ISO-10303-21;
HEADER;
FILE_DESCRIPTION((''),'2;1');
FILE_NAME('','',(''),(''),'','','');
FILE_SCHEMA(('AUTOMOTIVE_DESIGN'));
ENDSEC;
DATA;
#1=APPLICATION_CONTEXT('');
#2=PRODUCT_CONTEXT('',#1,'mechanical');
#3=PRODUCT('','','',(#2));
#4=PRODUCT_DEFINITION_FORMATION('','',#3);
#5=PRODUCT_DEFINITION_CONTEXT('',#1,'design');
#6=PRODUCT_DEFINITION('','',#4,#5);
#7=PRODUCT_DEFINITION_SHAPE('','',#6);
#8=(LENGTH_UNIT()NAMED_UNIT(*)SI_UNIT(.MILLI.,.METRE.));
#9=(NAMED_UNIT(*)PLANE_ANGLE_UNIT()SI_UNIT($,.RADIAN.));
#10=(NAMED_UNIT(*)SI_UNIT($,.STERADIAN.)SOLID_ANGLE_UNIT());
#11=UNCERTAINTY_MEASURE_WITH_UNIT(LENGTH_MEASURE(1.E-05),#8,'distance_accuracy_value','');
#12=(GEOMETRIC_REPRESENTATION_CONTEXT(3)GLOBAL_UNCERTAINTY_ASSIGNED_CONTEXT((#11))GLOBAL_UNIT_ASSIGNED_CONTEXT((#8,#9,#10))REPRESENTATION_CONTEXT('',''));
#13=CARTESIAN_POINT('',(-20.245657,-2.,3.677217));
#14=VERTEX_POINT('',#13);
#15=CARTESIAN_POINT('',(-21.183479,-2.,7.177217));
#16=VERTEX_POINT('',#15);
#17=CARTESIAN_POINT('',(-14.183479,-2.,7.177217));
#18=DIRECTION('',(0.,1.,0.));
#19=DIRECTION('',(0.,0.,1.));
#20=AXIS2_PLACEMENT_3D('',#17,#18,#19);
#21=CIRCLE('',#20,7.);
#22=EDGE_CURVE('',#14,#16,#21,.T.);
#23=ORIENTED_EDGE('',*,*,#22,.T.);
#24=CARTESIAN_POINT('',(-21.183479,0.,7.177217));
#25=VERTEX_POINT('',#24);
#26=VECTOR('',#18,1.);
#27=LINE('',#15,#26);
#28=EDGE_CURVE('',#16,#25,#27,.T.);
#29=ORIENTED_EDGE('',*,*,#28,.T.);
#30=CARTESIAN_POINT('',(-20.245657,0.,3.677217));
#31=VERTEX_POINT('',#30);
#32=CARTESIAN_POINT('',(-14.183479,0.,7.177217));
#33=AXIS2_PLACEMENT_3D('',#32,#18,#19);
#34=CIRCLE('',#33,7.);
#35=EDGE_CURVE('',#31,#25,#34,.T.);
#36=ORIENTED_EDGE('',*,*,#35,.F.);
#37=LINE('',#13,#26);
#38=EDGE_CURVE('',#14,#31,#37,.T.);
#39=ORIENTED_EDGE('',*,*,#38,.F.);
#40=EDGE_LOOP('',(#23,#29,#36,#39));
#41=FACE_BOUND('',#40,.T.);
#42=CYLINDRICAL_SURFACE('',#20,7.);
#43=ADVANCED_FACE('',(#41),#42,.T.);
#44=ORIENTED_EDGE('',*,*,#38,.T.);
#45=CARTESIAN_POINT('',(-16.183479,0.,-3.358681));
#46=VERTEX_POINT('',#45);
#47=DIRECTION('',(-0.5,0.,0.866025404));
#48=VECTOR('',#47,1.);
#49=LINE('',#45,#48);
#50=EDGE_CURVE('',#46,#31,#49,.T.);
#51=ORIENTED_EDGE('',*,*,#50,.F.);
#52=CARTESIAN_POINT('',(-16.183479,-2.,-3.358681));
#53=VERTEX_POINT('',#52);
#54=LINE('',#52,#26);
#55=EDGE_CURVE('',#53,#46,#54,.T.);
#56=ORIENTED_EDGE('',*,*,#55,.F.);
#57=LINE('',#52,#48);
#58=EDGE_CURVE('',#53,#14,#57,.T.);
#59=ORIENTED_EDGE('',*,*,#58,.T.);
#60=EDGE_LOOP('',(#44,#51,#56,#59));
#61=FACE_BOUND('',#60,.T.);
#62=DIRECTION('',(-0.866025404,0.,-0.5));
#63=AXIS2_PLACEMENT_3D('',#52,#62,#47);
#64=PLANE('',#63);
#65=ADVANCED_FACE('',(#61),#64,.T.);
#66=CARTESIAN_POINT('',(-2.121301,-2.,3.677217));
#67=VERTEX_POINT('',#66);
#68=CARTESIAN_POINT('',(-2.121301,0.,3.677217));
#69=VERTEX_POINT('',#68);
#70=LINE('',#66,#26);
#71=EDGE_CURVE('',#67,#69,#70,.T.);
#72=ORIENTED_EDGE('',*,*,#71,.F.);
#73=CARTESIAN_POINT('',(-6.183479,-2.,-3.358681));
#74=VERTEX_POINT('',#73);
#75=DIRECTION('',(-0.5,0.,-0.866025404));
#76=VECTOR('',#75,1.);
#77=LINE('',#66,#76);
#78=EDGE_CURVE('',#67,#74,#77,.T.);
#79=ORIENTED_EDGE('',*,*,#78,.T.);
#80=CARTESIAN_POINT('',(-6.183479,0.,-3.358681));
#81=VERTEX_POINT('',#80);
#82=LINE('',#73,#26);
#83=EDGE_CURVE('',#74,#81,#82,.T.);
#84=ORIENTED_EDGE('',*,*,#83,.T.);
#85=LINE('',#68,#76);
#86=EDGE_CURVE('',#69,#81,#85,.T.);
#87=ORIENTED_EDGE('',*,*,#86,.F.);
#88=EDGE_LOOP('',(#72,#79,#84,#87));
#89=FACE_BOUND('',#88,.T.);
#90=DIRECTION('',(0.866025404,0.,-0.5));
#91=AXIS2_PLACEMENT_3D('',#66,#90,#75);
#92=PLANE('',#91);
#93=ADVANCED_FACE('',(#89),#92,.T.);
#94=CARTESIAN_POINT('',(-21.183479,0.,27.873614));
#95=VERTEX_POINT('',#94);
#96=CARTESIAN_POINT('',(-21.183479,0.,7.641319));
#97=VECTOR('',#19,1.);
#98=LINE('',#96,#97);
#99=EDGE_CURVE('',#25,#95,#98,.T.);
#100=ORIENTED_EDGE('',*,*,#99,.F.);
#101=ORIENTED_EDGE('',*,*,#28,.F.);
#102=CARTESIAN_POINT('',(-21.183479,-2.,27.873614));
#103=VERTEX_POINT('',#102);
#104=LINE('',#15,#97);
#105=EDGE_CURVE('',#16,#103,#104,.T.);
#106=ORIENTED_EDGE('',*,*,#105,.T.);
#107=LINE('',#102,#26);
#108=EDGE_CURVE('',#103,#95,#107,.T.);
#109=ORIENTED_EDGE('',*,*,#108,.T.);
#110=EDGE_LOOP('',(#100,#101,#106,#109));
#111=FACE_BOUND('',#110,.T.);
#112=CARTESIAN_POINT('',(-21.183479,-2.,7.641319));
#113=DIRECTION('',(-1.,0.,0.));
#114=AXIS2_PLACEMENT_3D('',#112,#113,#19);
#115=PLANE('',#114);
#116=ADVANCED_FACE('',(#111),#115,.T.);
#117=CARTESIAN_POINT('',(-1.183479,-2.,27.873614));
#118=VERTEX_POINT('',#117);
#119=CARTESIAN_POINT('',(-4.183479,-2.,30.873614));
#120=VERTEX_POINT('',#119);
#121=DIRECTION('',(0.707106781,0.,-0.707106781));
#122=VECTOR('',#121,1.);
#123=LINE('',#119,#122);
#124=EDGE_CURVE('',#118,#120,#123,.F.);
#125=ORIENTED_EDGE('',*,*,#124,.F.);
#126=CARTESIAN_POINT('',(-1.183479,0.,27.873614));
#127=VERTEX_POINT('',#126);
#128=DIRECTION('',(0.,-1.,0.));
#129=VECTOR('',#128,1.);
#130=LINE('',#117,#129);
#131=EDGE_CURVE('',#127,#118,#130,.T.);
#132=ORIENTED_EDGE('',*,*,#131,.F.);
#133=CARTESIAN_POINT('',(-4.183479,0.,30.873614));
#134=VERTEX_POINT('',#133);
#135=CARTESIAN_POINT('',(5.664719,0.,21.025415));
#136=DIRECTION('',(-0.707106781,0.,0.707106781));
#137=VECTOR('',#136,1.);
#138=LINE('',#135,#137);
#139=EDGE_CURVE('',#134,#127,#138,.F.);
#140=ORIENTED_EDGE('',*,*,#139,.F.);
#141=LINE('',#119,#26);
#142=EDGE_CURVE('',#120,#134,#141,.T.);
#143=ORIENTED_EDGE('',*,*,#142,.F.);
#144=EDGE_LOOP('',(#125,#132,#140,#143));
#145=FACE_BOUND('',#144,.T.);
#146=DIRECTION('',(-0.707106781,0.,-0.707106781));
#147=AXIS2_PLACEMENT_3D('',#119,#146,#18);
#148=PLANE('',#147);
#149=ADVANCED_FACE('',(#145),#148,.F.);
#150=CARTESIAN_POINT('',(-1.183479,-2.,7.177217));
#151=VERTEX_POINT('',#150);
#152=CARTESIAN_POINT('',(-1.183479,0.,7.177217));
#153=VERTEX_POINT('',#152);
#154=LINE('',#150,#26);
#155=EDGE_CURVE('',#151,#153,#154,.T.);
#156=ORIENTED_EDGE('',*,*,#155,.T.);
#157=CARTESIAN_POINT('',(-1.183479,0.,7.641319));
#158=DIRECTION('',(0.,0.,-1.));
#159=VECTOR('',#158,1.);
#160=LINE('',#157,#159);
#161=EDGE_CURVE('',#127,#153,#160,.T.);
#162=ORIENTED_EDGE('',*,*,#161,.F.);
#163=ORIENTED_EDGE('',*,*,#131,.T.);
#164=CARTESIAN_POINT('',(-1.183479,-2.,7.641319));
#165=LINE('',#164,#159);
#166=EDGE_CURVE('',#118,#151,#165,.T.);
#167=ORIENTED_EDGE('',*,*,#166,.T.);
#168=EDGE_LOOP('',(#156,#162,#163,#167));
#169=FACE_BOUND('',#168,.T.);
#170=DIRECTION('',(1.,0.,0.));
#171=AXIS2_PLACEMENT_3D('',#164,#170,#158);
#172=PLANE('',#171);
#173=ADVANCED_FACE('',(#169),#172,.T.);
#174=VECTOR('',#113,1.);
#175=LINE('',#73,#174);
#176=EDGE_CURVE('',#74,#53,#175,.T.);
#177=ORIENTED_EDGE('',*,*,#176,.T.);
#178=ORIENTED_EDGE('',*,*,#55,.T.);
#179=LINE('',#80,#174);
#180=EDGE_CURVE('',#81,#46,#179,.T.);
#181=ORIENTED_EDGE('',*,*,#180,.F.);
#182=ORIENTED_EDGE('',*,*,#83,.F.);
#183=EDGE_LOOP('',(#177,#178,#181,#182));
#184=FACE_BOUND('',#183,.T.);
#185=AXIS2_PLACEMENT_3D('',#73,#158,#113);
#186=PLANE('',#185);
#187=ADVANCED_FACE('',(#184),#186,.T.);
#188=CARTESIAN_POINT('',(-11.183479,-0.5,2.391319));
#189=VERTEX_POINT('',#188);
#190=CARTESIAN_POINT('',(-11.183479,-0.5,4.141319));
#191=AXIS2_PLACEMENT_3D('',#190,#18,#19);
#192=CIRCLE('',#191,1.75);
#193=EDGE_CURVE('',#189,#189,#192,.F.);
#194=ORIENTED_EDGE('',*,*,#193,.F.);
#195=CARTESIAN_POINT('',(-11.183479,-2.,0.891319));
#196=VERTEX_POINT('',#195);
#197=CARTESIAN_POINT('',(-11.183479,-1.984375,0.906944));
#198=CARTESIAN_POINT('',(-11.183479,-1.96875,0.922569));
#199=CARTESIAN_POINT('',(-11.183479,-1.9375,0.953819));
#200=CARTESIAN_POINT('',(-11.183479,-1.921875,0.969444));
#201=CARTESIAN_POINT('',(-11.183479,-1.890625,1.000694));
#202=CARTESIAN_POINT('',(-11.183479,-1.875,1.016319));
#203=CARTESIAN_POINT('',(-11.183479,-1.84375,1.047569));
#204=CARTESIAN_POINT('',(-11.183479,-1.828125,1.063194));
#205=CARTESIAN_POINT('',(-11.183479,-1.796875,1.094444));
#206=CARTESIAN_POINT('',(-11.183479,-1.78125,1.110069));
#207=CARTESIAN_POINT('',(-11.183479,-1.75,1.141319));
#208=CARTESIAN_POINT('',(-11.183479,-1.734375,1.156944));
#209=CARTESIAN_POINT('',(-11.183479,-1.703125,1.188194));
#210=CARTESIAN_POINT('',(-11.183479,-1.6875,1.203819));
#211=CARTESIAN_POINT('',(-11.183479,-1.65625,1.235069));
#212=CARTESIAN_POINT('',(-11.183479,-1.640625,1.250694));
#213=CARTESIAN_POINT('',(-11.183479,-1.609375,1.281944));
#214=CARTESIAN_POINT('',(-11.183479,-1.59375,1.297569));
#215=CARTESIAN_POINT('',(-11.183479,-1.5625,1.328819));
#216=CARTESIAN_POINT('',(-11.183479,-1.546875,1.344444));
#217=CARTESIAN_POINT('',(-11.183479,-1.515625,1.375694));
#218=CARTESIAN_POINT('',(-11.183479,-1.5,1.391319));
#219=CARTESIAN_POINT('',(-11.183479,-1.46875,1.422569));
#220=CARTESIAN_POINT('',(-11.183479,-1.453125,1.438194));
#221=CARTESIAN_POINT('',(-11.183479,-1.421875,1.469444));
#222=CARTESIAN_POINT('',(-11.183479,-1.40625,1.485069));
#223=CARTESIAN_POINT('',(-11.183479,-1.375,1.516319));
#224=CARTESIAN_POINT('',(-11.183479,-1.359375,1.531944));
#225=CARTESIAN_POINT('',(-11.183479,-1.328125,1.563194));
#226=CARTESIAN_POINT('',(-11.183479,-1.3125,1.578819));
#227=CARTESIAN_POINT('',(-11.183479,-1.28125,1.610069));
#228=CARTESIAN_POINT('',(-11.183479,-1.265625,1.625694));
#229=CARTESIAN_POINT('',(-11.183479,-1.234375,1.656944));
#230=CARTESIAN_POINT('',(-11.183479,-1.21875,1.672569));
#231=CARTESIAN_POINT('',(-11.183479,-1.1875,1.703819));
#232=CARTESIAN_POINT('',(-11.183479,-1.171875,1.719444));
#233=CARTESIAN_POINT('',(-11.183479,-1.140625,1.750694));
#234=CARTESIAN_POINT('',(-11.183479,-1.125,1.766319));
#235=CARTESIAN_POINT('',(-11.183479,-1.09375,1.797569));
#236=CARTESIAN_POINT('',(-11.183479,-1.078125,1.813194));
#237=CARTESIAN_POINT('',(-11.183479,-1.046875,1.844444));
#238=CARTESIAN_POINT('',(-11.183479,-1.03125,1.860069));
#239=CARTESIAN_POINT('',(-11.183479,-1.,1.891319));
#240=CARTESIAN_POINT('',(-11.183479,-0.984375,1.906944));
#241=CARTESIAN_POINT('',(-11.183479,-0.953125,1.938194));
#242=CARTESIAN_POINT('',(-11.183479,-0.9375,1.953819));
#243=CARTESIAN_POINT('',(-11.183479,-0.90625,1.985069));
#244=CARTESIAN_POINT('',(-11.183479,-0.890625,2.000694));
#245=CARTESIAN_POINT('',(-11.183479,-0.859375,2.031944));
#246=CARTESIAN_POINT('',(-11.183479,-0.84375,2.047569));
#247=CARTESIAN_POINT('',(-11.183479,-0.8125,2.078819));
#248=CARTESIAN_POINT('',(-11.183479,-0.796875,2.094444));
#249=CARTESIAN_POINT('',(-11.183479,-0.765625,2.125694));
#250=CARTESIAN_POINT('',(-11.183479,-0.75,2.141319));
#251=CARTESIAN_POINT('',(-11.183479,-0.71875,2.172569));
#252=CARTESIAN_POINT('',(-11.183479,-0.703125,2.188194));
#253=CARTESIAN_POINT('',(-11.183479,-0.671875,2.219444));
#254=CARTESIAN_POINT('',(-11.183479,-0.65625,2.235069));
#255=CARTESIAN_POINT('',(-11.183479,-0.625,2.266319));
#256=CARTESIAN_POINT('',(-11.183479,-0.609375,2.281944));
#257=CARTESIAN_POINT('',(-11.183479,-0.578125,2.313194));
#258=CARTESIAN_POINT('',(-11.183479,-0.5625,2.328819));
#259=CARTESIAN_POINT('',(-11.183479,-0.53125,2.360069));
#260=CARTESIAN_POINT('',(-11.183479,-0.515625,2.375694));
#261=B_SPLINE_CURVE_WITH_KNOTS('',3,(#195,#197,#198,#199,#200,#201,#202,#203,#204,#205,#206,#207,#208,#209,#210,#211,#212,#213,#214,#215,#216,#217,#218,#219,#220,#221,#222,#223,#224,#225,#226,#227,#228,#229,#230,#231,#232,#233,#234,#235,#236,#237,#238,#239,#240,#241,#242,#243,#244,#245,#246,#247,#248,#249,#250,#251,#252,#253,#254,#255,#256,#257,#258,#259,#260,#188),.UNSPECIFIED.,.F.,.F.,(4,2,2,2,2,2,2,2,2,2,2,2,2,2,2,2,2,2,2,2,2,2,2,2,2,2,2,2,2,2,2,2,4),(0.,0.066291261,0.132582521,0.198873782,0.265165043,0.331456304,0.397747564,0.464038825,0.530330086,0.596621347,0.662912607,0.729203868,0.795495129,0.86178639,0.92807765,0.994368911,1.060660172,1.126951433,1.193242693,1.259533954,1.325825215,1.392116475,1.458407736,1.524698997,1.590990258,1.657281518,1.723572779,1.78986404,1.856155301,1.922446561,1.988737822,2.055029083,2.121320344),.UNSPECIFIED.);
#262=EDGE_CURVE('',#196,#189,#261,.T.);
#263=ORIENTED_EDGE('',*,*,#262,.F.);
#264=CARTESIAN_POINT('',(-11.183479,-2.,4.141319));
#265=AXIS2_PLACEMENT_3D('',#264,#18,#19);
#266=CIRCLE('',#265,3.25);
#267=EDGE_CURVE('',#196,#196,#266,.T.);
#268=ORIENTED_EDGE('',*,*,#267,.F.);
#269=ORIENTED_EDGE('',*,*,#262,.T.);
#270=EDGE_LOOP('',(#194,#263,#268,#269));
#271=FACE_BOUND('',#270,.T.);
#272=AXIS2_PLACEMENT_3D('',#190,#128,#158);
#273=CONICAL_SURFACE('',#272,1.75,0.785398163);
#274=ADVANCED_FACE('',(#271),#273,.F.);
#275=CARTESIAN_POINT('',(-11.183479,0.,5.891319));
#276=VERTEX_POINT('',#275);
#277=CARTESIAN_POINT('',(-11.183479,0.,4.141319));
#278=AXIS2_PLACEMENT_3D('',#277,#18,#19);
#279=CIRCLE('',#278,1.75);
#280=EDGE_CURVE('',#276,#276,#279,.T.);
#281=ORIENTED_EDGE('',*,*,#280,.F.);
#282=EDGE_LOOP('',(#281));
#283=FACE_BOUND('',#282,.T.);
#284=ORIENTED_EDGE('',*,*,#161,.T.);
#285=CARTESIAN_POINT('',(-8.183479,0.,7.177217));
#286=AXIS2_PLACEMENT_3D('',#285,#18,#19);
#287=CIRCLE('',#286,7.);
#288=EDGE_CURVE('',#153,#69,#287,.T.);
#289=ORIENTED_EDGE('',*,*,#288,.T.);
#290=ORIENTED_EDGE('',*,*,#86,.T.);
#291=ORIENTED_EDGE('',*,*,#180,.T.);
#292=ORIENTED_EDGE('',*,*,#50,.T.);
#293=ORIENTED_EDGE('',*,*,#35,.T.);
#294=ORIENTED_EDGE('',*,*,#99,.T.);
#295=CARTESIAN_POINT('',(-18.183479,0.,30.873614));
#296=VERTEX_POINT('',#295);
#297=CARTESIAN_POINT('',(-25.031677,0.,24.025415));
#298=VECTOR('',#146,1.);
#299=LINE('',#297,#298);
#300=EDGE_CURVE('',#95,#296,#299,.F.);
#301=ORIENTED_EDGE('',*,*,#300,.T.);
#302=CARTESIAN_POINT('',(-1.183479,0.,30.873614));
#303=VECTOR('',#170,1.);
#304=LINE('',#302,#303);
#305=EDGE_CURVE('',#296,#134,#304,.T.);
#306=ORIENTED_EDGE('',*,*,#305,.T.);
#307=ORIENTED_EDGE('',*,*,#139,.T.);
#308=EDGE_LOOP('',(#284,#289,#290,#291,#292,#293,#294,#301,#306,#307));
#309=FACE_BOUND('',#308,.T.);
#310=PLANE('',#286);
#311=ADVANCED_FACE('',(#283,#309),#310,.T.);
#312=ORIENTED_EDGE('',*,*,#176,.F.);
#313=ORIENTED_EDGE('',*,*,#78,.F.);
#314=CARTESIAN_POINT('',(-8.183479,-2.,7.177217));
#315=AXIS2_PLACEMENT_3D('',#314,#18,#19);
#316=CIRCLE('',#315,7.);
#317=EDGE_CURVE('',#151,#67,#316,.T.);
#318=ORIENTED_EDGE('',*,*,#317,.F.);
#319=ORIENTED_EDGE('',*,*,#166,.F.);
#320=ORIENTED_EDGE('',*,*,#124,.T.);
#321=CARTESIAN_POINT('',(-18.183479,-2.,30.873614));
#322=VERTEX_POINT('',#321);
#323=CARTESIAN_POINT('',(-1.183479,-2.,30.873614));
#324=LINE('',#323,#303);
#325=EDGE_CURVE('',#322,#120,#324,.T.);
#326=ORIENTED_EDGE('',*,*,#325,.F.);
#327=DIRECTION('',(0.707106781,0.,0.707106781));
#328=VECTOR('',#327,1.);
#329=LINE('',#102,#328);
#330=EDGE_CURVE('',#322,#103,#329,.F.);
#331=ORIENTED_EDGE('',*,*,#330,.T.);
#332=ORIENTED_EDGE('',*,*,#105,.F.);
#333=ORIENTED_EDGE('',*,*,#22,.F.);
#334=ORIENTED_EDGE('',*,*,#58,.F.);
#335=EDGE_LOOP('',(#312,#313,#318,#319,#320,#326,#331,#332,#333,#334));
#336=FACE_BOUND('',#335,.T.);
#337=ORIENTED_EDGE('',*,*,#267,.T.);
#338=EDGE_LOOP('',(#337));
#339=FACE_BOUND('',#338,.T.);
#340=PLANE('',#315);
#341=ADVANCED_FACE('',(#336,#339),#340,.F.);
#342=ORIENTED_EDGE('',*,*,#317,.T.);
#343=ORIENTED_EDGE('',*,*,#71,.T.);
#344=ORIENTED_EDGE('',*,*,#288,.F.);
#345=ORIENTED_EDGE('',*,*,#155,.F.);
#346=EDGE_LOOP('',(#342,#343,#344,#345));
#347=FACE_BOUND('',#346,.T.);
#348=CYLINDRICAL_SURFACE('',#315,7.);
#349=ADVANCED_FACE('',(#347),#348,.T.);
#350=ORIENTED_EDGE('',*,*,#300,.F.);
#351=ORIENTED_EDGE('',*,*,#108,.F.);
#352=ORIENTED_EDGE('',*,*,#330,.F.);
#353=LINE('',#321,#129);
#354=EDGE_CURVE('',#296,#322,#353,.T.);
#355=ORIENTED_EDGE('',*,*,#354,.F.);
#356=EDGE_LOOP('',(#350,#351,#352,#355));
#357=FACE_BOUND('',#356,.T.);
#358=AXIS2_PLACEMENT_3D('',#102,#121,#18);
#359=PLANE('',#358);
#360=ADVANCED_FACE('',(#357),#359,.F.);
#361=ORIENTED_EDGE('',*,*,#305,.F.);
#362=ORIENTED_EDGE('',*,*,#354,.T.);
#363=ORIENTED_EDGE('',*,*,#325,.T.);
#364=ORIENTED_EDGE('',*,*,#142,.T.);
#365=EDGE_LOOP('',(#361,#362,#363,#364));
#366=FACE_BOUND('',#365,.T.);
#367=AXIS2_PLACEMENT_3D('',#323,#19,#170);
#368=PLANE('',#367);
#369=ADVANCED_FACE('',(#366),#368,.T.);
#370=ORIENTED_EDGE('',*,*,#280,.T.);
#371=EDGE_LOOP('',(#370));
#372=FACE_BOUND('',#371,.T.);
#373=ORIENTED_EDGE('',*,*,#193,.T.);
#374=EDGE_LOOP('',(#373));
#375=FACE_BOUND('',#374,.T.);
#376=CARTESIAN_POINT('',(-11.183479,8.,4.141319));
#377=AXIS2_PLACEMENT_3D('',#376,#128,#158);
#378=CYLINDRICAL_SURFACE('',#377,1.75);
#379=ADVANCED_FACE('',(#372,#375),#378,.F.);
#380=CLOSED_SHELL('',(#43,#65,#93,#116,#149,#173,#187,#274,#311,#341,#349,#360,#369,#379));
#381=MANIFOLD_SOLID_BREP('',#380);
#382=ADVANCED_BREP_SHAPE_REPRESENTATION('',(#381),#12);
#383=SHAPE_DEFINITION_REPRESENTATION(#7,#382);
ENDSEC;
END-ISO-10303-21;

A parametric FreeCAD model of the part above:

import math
import FreeCAD as App
import Part
import Sketcher

V = App.Vector
Q = App.Units.Quantity


def edges_at(feature, points):
    """Names of the edges that pass closest to the given points."""
    edges = feature.Shape.Edges
    near = lambda p: min(range(len(edges)), key=lambda i: edges[i].distToShape(Part.Vertex(*p))[0])
    return sorted({f"Edge{near(p) + 1}" for p in points})

doc = App.newDocument("Part")
body = doc.addObject("PartDesign::Body", "Body")

# Sketch on XZ plane
sketch1 = body.newObject("Sketcher::SketchObject", "Sketch")
sketch1.AttachmentSupport = (doc.getObject("XZ_Plane"), [""])
sketch1.MapMode = "FlatFace"
sketch1.addGeometry([
    Part.LineSegment(V(-21.2, 30.9, 0), V(-1.2, 30.9, 0)),  # 0
    Part.LineSegment(V(-1.2, 30.9, 0), V(-1.2, 7.2, 0)),  # 1
    Part.ArcOfCircle(Part.Circle(V(-8.2, 7.2, 0), V(0, 0, 1), 7), math.radians(-30), math.radians(0)),  # 2
    Part.LineSegment(V(-2.1, 3.7, 0), V(-6.2, -3.4, 0)),  # 3
    Part.LineSegment(V(-6.2, -3.4, 0), V(-16.2, -3.4, 0)),  # 4
    Part.LineSegment(V(-16.2, -3.4, 0), V(-20.2, 3.7, 0)),  # 5
    Part.ArcOfCircle(Part.Circle(V(-14.2, 7.2, 0), V(0, 0, 1), 7), math.radians(180), math.radians(210)),  # 6
    Part.LineSegment(V(-21.2, 7.2, 0), V(-21.2, 30.9, 0)),  # 7
], False)
sketch1.addConstraint([
    Sketcher.Constraint("Coincident", 0, 2, 1, 1),
    Sketcher.Constraint("Tangent", 1, 2, 2, 2),
    Sketcher.Constraint("Tangent", 2, 1, 3, 1),
    Sketcher.Constraint("Coincident", 3, 2, 4, 1),
    Sketcher.Constraint("Coincident", 4, 2, 5, 1),
    Sketcher.Constraint("Tangent", 5, 2, 6, 2),
    Sketcher.Constraint("Tangent", 6, 1, 7, 1),
    Sketcher.Constraint("Coincident", 7, 2, 0, 1),
    Sketcher.Constraint("Horizontal", 0),
    Sketcher.Constraint("Vertical", 1),
    Sketcher.Constraint("Horizontal", 4),
    Sketcher.Constraint("Vertical", 7),
    Sketcher.Constraint("Equal", 2, 6),
    Sketcher.Constraint("Horizontal", 2, 3, 6, 3),
    Sketcher.Constraint("Horizontal", 2, 1, 5, 2),
    Sketcher.Constraint("Radius", 2, 7.0),
    Sketcher.Constraint("DistanceX", 0, 1, 0, 2, 20.0),
    Sketcher.Constraint("DistanceX", 4, 2, 4, 1, 10.0),
    Sketcher.Constraint("Angle", 3, Q("-120 deg")),
    Sketcher.Constraint("DistanceX", 2, 1, -1, 1, 2.121301),
    Sketcher.Constraint("DistanceY", 1, 2, 1, 1, 23.696396),
    Sketcher.Constraint("DistanceY", 3, 2, -1, 1, 3.358681),
])
pad1 = body.newObject("PartDesign::Pad", "Pad")
pad1.Profile = sketch1
pad1.Length = 2

# Sketch on XZ plane
sketch2 = body.newObject("Sketcher::SketchObject", "Sketch001")
sketch2.AttachmentSupport = (doc.getObject("XZ_Plane"), [""])
sketch2.MapMode = "FlatFace"
sketch2.AttachmentOffset = App.Placement(V(0, 0, 2), App.Rotation())
sketch2.addGeometry(Part.Circle(V(-11.2, 4.1, 0), V(0, 0, 1), 1.8), False)
sketch2.addConstraint([
    Sketcher.Constraint("Diameter", 0, 3.5),
    Sketcher.Constraint("DistanceX", 0, 3, -1, 1, 11.183479),
    Sketcher.Constraint("DistanceY", -1, 1, 0, 3, 4.141319),
])
pocket1 = body.newObject("PartDesign::Pocket", "Pocket")
pocket1.Profile = sketch2
pocket1.Length = 10
doc.recompute()

chamfer = body.newObject("PartDesign::Chamfer", "Chamfer")
chamfer.Base = (pocket1, edges_at(pocket1, [(-1.183, -1, 30.874), (-21.183, -1, 30.874)]))
chamfer.Size = 3
doc.recompute()

chamfer2 = body.newObject("PartDesign::Chamfer", "Chamfer001")
chamfer2.Base = (chamfer, edges_at(chamfer, [(-11.183, -2, 5.891)]))
chamfer2.Size = 1.5

doc.recompute()
